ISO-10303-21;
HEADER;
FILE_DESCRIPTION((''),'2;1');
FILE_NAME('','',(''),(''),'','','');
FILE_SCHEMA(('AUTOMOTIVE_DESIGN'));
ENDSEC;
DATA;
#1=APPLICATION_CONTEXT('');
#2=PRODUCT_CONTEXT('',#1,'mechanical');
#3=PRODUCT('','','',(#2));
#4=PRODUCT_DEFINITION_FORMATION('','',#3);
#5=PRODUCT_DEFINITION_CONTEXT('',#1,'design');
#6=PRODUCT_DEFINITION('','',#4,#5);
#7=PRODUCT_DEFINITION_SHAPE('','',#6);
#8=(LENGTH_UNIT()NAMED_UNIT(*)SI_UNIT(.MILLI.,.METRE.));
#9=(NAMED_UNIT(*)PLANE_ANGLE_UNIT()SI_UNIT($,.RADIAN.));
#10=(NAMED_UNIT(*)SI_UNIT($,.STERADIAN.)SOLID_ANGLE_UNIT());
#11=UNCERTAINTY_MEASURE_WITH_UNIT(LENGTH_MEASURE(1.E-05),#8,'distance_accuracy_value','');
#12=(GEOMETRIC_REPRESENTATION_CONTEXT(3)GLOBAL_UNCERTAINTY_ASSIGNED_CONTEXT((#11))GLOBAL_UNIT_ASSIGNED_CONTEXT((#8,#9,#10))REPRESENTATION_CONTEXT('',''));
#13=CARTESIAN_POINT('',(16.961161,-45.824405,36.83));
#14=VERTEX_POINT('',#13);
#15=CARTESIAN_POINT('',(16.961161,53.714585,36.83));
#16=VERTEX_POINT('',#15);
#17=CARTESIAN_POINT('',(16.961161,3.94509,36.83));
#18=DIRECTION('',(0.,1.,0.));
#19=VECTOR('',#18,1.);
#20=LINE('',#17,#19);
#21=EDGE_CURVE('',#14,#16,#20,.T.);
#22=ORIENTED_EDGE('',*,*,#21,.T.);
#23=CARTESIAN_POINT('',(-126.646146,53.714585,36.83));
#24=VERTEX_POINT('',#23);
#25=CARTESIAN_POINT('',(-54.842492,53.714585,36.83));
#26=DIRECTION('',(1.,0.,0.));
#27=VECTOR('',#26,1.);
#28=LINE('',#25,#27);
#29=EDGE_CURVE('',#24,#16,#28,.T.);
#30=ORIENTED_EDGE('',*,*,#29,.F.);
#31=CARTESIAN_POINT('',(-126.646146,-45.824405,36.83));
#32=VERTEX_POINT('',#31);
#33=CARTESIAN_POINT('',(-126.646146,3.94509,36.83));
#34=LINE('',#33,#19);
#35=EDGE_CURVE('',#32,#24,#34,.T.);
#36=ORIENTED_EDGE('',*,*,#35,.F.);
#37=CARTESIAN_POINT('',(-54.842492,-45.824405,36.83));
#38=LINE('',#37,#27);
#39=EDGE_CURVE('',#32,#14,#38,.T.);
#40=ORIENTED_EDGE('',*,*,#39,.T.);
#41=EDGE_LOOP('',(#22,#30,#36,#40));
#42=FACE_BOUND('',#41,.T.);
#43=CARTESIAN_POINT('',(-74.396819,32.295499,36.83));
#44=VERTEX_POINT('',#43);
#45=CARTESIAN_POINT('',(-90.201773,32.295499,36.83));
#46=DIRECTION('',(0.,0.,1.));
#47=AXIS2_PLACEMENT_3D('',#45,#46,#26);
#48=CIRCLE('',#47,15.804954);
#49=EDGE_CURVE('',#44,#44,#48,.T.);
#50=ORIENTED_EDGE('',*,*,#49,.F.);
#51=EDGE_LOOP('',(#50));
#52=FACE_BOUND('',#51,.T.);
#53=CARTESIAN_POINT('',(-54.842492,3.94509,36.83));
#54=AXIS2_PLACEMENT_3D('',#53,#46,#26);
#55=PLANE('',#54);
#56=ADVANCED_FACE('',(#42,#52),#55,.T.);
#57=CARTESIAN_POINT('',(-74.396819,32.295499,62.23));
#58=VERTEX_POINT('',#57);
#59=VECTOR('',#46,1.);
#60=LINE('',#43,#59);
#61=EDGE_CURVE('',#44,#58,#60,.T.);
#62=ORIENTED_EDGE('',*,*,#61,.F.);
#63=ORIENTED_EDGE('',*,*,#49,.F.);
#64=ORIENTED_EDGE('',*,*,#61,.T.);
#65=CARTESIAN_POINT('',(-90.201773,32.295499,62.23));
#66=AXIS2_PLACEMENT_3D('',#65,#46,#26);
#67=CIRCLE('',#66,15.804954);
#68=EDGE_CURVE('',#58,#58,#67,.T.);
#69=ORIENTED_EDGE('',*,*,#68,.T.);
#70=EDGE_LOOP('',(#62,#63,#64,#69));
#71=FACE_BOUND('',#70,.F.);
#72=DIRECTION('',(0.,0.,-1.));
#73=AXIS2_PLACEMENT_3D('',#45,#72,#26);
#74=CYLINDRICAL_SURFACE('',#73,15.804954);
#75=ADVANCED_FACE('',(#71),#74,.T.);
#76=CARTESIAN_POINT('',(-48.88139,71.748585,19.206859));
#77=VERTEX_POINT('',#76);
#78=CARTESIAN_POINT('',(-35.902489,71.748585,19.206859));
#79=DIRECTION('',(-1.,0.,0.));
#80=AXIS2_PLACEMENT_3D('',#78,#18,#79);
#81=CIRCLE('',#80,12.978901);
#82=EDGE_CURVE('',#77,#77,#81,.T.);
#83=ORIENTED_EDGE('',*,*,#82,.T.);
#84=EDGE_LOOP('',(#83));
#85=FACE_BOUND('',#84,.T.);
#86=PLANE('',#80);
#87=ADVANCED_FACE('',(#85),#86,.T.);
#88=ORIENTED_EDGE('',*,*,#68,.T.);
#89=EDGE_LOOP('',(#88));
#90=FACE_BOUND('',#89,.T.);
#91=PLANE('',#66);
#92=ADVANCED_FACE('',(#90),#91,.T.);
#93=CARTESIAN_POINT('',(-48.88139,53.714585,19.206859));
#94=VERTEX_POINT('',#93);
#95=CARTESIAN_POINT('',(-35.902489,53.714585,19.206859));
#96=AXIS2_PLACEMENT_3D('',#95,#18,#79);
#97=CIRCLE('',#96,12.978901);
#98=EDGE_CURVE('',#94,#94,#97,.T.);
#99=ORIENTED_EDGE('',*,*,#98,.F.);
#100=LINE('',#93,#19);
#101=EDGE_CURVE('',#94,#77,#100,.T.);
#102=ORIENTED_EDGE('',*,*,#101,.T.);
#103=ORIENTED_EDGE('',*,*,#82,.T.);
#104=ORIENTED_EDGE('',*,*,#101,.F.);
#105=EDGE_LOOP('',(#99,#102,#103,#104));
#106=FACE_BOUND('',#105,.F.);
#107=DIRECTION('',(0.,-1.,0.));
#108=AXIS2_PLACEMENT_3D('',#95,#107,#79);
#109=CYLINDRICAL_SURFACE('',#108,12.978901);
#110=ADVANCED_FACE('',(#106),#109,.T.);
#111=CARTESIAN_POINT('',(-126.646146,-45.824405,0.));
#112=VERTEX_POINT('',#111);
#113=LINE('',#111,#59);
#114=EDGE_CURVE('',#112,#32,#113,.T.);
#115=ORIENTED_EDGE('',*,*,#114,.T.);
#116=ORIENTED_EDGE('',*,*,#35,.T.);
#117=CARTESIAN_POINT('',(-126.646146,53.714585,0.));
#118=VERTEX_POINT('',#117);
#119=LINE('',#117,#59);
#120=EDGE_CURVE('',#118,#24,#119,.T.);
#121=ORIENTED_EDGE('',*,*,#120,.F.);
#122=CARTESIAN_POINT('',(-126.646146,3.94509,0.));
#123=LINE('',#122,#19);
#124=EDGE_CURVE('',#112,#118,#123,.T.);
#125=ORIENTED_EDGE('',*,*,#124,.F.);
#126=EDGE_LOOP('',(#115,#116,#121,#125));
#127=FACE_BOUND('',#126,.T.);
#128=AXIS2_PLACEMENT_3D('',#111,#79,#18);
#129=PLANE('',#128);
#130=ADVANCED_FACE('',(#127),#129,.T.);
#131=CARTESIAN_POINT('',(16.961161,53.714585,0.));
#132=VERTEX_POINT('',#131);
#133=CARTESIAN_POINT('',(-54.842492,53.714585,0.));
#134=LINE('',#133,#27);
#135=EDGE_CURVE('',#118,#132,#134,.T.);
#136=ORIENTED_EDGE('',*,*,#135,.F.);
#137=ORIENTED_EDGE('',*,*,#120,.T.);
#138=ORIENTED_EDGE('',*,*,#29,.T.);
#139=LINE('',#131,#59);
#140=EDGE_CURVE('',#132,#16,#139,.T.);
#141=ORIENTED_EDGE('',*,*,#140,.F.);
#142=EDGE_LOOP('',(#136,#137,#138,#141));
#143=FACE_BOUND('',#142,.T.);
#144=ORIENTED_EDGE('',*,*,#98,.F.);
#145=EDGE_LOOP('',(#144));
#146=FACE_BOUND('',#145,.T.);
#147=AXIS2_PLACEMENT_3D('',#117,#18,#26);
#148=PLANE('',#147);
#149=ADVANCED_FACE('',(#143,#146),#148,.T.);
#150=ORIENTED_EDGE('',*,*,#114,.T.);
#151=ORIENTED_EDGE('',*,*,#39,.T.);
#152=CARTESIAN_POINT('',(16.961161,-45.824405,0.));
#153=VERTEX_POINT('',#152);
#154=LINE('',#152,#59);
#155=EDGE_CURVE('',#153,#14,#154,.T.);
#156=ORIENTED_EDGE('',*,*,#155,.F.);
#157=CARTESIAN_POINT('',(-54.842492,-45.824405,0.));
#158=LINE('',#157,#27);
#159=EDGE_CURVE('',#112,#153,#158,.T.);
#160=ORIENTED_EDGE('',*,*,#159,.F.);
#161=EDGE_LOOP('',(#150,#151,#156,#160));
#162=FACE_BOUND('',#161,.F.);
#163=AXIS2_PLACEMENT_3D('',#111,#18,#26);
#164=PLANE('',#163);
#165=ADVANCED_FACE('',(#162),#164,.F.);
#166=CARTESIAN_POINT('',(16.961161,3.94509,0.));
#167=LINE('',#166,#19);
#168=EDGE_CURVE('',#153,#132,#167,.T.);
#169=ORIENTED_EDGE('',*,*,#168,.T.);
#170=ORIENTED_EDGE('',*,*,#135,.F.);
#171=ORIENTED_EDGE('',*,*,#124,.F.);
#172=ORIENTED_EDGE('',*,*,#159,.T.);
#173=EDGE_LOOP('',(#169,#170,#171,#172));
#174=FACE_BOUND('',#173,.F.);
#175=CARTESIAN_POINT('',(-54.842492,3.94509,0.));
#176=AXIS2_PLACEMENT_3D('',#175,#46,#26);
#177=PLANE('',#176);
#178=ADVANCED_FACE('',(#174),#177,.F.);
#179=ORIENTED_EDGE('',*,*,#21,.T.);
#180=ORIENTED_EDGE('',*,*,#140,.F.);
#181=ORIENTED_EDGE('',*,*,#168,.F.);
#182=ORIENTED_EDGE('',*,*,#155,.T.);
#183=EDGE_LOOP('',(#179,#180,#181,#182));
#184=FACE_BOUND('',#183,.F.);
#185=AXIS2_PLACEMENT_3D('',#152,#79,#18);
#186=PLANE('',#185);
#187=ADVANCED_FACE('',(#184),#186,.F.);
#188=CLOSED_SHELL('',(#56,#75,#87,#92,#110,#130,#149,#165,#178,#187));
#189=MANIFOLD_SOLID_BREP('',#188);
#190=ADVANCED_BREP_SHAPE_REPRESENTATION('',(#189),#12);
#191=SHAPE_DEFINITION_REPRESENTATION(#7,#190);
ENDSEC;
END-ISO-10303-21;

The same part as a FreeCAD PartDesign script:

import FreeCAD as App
import Part
import Sketcher

V = App.Vector
Q = App.Units.Quantity


def add_polygon(sketch, points):
    """Adds a closed chain of lines whose ends are joined by coincident constraints."""
    first, n = sketch.GeometryCount, len(points)
    for a, b in zip(points, points[1:] + points[:1]):
        sketch.addGeometry(Part.LineSegment(App.Vector(*a, 0), App.Vector(*b, 0)), False)
    for i in range(n):
        sketch.addConstraint(Sketcher.Constraint("Coincident", first + i, 2, first + (i + 1) % n, 1))

doc = App.newDocument("Part")
body = doc.addObject("PartDesign::Body", "Body")

# Sketch on XY plane
sketch1 = body.newObject("Sketcher::SketchObject", "Sketch")
sketch1.AttachmentSupport = (doc.getObject("XY_Plane"), [""])
sketch1.MapMode = "FlatFace"
add_polygon(sketch1, [(-126.646146, 53.714585), (-126.646146, -45.824405), (16.961161, -45.824405), (16.961161, 53.714585)])  # lines 0-3
sketch1.addConstraint([
    Sketcher.Constraint("Vertical", 0),
    Sketcher.Constraint("Horizontal", 1),
    Sketcher.Constraint("Vertical", 2),
    Sketcher.Constraint("Horizontal", 3),
    Sketcher.Constraint("DistanceY", 0, 2, 0, 1, Q("99.53899 mm")),
    Sketcher.Constraint("DistanceX", 1, 1, 1, 2, Q("143.607307 mm")),
    Sketcher.Constraint("DistanceX", -1, 1, 1, 2, Q("16.961161 mm")),
    Sketcher.Constraint("DistanceY", 0, 2, -1, 1, Q("45.824405 mm")),
])
pad1 = body.newObject("PartDesign::Pad", "Pad")
pad1.Profile = sketch1
pad1.Length = Q("1.45 in")

# Sketch on XY plane
sketch2 = body.newObject("Sketcher::SketchObject", "Sketch001")
sketch2.AttachmentSupport = (doc.getObject("XY_Plane"), [""])
sketch2.MapMode = "FlatFace"
sketch2.AttachmentOffset = App.Placement(V(0, 0, 1.45 * 25.4), App.Rotation())
sketch2.addGeometry(Part.Circle(V(-90.201773, 32.295499, 0), V(0, 0, 1), 15.804954), False)
sketch2.addConstraint([
    Sketcher.Constraint("Diameter", 0, Q("31.609908 mm")),
    Sketcher.Constraint("DistanceY", -1, 1, 0, 3, Q("32.295499 mm")),
    Sketcher.Constraint("DistanceX", 0, 3, -1, 1, Q("90.201773 mm")),
])
pad2 = body.newObject("PartDesign::Pad", "Pad001")
pad2.Profile = sketch2
pad2.Length = Q("1 in")

# Sketch on XZ plane
sketch3 = body.newObject("Sketcher::SketchObject", "Sketch002")
sketch3.AttachmentSupport = (doc.getObject("XZ_Plane"), [""])
sketch3.MapMode = "FlatFace"
sketch3.AttachmentOffset = App.Placement(V(0, 0, -53.714585), App.Rotation())
sketch3.addGeometry(Part.Circle(V(-35.902489, 19.206859, 0), V(0, 0, 1), 12.978901), False)
sketch3.addConstraint([
    Sketcher.Constraint("Diameter", 0, Q("25.957802 mm")),
    Sketcher.Constraint("DistanceX", 0, 3, -1, 1, Q("35.902489 mm")),
    Sketcher.Constraint("DistanceY", -1, 1, 0, 3, Q("19.206859 mm")),
])
pad3 = body.newObject("PartDesign::Pad", "Pad002")
pad3.Profile = sketch3
pad3.Length = Q("0.71 in")
pad3.Reversed = True

doc.recompute()
